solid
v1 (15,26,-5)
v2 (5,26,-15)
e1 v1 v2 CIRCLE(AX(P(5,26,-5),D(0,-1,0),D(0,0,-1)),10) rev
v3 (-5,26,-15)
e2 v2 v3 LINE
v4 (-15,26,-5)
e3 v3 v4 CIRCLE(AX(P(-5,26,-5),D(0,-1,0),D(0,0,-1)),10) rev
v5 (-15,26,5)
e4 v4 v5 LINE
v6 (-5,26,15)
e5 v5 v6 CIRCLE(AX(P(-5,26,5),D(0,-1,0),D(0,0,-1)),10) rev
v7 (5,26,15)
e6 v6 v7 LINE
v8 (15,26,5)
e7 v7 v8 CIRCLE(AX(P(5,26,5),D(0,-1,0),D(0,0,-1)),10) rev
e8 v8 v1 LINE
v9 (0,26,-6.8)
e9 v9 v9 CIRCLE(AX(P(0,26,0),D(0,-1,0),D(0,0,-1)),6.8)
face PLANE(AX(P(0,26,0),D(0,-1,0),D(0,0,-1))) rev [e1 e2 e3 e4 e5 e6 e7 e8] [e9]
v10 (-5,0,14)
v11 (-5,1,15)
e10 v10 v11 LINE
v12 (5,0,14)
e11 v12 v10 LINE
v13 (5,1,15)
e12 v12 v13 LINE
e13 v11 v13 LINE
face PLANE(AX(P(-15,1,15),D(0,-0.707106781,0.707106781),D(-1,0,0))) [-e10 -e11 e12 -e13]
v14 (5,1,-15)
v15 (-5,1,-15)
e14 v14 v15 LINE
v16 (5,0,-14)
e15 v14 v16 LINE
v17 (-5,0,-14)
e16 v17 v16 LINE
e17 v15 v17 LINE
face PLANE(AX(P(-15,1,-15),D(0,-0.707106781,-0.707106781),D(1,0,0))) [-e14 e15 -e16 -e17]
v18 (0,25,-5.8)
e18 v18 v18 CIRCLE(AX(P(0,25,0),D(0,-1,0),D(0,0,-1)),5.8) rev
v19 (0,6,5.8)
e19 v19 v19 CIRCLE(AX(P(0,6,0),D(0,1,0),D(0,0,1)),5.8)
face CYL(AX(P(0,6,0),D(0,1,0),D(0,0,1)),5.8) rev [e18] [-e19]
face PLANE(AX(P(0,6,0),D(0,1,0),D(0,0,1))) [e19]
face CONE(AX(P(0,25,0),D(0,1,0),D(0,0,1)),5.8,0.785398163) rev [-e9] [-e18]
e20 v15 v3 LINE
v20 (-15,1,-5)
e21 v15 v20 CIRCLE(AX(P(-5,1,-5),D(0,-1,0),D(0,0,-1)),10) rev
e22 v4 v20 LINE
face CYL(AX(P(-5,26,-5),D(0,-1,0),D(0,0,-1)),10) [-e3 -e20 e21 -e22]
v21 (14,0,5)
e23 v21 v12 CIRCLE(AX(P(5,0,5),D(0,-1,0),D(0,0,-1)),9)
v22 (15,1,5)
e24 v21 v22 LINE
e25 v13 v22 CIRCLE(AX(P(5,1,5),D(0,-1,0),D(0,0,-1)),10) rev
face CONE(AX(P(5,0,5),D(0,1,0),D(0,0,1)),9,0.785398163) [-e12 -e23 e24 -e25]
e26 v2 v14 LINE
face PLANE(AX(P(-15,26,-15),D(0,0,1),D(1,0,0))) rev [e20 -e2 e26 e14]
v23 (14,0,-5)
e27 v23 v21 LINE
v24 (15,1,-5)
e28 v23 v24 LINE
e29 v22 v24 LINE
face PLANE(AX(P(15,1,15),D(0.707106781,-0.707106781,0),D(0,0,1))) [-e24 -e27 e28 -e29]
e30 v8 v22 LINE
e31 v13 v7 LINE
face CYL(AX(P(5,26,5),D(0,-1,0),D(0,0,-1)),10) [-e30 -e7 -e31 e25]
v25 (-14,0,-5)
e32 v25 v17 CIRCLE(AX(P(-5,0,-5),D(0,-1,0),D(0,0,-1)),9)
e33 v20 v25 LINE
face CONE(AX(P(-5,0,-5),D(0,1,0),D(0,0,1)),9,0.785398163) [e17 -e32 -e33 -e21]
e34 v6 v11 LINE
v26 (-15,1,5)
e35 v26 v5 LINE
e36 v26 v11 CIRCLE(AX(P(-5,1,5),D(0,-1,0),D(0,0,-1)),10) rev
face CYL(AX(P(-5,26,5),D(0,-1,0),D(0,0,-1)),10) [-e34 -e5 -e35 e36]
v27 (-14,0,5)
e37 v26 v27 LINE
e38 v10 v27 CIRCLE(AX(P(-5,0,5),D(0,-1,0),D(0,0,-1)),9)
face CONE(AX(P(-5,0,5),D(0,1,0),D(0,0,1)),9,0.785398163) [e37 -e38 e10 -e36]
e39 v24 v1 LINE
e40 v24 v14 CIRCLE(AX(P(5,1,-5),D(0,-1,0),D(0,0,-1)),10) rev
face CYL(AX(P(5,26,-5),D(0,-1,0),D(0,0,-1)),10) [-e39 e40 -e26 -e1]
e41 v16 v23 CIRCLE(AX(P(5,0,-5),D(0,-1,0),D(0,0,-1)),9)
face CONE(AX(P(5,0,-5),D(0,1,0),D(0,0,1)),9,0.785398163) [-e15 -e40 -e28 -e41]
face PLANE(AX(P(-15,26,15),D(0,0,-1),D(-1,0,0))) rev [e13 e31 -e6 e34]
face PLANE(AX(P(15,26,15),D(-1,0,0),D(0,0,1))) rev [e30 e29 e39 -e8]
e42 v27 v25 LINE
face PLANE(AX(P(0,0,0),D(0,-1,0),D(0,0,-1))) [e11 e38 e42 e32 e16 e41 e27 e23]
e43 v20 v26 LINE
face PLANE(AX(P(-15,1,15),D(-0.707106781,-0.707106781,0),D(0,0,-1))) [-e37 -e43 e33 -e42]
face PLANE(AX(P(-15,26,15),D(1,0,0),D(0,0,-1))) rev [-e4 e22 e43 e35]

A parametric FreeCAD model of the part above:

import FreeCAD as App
import Part
import Sketcher
from FreeCAD import Vector


def edges_at(feature, points):
    """Names of the edges that pass closest to the given points."""
    edges = feature.Shape.Edges
    near = lambda p: min(range(len(edges)), key=lambda i: edges[i].distToShape(Part.Vertex(*p))[0])
    return sorted({f"Edge{near(p) + 1}" for p in points})

doc = App.newDocument("Part")
body = doc.addObject("PartDesign::Body", "Body")

sketch1 = body.newObject("Sketcher::SketchObject", "Sketch")
sketch1.AttachmentSupport = (doc.getObject("XZ_Plane"), [""])
sketch1.MapMode = "FlatFace"
sketch1.addGeometry(Part.LineSegment(Vector(-15, -15, 0), Vector(-15, 15, 0)), False)
sketch1.addGeometry(Part.LineSegment(Vector(-15, 15, 0), Vector(15, 15, 0)), False)
sketch1.addGeometry(Part.LineSegment(Vector(15, 15, 0), Vector(15, -15, 0)), False)
sketch1.addGeometry(Part.LineSegment(Vector(15, -15, 0), Vector(-15, -15, 0)), False)
sketch1.addConstraint(Sketcher.Constraint("Coincident", 0, 2, 1, 1))
sketch1.addConstraint(Sketcher.Constraint("Coincident", 1, 2, 2, 1))
sketch1.addConstraint(Sketcher.Constraint("Coincident", 2, 2, 3, 1))
sketch1.addConstraint(Sketcher.Constraint("Coincident", 3, 2, 0, 1))
sketch1.addConstraint(Sketcher.Constraint("Vertical", 0))
sketch1.addConstraint(Sketcher.Constraint("Horizontal", 1))
sketch1.addConstraint(Sketcher.Constraint("Vertical", 2))
sketch1.addConstraint(Sketcher.Constraint("Horizontal", 3))
sketch1.addConstraint(Sketcher.Constraint("Symmetric", 0, 2, 2, 2, -1, 1))
sketch1.addConstraint(Sketcher.Constraint("Equal", 3, 0))
sketch1.addConstraint(Sketcher.Constraint("DistanceX", 1, 1, 1, 2, 30.0))
pad1 = body.newObject("PartDesign::Pad", "Pad")
pad1.Profile = sketch1
pad1.Length = 26
pad1.Reversed = True

sketch2 = body.newObject("Sketcher::SketchObject", "Sketch001")
sketch2.AttachmentSupport = (doc.getObject("XZ_Plane"), [""])
sketch2.MapMode = "FlatFace"
sketch2.AttachmentOffset = App.Placement(Vector(0, 0, -26), App.Rotation())
sketch2.addGeometry(Part.Circle(Vector(0, 0, 0), Vector(0, 0, 1), 6), False)
sketch2.addConstraint(Sketcher.Constraint("Coincident", 0, 3, -1, 1))
sketch2.addConstraint(Sketcher.Constraint("Diameter", 0, 11.6))
pocket1 = body.newObject("PartDesign::Pocket", "Pocket")
pocket1.Profile = sketch2
pocket1.Length = 20
pocket1.Reversed = True
doc.recompute()

fillet = body.newObject("PartDesign::Fillet", "Fillet")
fillet.Base = (pocket1, edges_at(pocket1, [
    (15, 13, 15),
    (-15, 13, 15),
    (-15, 13, -15),
    (15, 13, -15),
]))
fillet.Radius = 10
doc.recompute()

chamfer = body.newObject("PartDesign::Chamfer", "Chamfer")
chamfer.Base = (fillet, edges_at(fillet, [
    (-15, 0, 0),
    (15, 0, 0),
    (0, 0, 15),
    (0, 0, -15),
    (12.071, 0, 12.071),
    (-12.071, 0, 12.071),
    (12.071, 0, -12.071),
    (-12.071, 0, -12.071),
]))
chamfer.Size = 1
doc.recompute()

chamfer2 = body.newObject("PartDesign::Chamfer", "Chamfer001")
chamfer2.Base = (chamfer, edges_at(chamfer, [(0, 26, -5.8)]))
chamfer2.Size = 1

doc.recompute()
